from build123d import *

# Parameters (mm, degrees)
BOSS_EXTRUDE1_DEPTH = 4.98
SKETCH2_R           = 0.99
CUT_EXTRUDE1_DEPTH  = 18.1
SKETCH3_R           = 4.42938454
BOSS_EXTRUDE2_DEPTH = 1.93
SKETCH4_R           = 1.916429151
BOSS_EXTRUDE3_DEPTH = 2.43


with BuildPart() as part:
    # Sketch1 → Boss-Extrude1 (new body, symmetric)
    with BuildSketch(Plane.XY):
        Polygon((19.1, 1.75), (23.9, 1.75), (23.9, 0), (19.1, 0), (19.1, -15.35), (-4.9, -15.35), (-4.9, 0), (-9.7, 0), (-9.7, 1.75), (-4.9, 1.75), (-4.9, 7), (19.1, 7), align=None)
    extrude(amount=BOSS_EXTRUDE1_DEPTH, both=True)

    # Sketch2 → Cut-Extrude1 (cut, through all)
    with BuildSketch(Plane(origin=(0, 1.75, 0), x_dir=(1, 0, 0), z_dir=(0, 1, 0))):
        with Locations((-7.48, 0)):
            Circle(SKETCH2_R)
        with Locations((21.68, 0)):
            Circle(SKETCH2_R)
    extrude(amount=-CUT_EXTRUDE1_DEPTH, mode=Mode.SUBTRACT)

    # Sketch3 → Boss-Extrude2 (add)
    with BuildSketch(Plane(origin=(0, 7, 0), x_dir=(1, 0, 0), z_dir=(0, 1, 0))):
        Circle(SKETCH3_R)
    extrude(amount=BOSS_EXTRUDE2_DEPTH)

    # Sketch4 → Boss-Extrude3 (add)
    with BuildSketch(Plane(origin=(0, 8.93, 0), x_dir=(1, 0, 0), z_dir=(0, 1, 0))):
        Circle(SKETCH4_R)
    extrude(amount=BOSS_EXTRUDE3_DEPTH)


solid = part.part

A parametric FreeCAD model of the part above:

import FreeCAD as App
import Part
import Sketcher

V = App.Vector
Q = App.Units.Quantity

doc = App.newDocument("Part")
body = doc.addObject("PartDesign::Body", "Body")

# Sketch on XY plane
sketch1 = body.newObject("Sketcher::SketchObject", "Sketch")
sketch1.AttachmentSupport = (doc.getObject("XY_Plane"), [""])
sketch1.MapMode = "FlatFace"
sketch1.addGeometry(Part.LineSegment(V(23.9, 1.8, 0), V(19.1, 1.8, 0)), False)
sketch1.addGeometry(Part.LineSegment(V(19.1, 1.8, 0), V(19.1, 7, 0)), False)
sketch1.addGeometry(Part.LineSegment(V(19.1, 7, 0), V(-4.9, 7, 0)), False)
sketch1.addGeometry(Part.LineSegment(V(-4.9, 7, 0), V(-4.9, 1.8, 0)), False)
sketch1.addGeometry(Part.LineSegment(V(-4.9, 1.8, 0), V(-9.7, 1.8, 0)), False)
sketch1.addGeometry(Part.LineSegment(V(-9.7, 1.8, 0), V(-9.7, 0, 0)), False)
sketch1.addGeometry(Part.LineSegment(V(-9.7, 0, 0), V(-4.9, 0, 0)), False)
sketch1.addGeometry(Part.LineSegment(V(-4.9, 0, 0), V(-4.9, -15.3, 0)), False)
sketch1.addGeometry(Part.LineSegment(V(-4.9, -15.3, 0), V(19.1, -15.3, 0)), False)
sketch1.addGeometry(Part.LineSegment(V(19.1, -15.3, 0), V(19.1, 0, 0)), False)
sketch1.addGeometry(Part.LineSegment(V(19.1, 0, 0), V(23.9, 0, 0)), False)
sketch1.addGeometry(Part.LineSegment(V(23.9, 0, 0), V(23.9, 1.8, 0)), False)
sketch1.addConstraint(Sketcher.Constraint("Coincident", 0, 2, 1, 1))
sketch1.addConstraint(Sketcher.Constraint("Coincident", 1, 2, 2, 1))
sketch1.addConstraint(Sketcher.Constraint("Coincident", 2, 2, 3, 1))
sketch1.addConstraint(Sketcher.Constraint("Coincident", 3, 2, 4, 1))
sketch1.addConstraint(Sketcher.Constraint("Coincident", 4, 2, 5, 1))
sketch1.addConstraint(Sketcher.Constraint("Coincident", 5, 2, 6, 1))
sketch1.addConstraint(Sketcher.Constraint("Coincident", 6, 2, 7, 1))
sketch1.addConstraint(Sketcher.Constraint("Coincident", 7, 2, 8, 1))
sketch1.addConstraint(Sketcher.Constraint("Coincident", 8, 2, 9, 1))
sketch1.addConstraint(Sketcher.Constraint("Coincident", 9, 2, 10, 1))
sketch1.addConstraint(Sketcher.Constraint("Coincident", 10, 2, 11, 1))
sketch1.addConstraint(Sketcher.Constraint("Coincident", 11, 2, 0, 1))
sketch1.addConstraint(Sketcher.Constraint("Horizontal", 0))
sketch1.addConstraint(Sketcher.Constraint("Vertical", 1))
sketch1.addConstraint(Sketcher.Constraint("Horizontal", 2))
sketch1.addConstraint(Sketcher.Constraint("Vertical", 3))
sketch1.addConstraint(Sketcher.Constraint("Horizontal", 4))
sketch1.addConstraint(Sketcher.Constraint("Vertical", 5))
sketch1.addConstraint(Sketcher.Constraint("Horizontal", 6))
sketch1.addConstraint(Sketcher.Constraint("Vertical", 7))
sketch1.addConstraint(Sketcher.Constraint("Horizontal", 8))
sketch1.addConstraint(Sketcher.Constraint("Vertical", 9))
sketch1.addConstraint(Sketcher.Constraint("Horizontal", 10))
sketch1.addConstraint(Sketcher.Constraint("Vertical", 11))
sketch1.addConstraint(Sketcher.Constraint("PointOnObject", 5, 2, -1))
sketch1.addConstraint(Sketcher.Constraint("PointOnObject", 9, 2, -1))
sketch1.addConstraint(Sketcher.Constraint("Horizontal", 0, 2, 3, 2))
sketch1.addConstraint(Sketcher.Constraint("Vertical", 3, 2, 6, 2))
sketch1.addConstraint(Sketcher.Constraint("Vertical", 1, 2, 8, 2))
sketch1.addConstraint(Sketcher.Constraint("Equal", 0, 4))
sketch1.addConstraint(Sketcher.Constraint("DistanceX", 2, 2, 2, 1, Q("24 mm")))
sketch1.addConstraint(Sketcher.Constraint("DistanceX", 0, 2, 0, 1, Q("4.8 mm")))
sketch1.addConstraint(Sketcher.Constraint("DistanceY", -1, 1, 1, 2, Q("7 mm")))
sketch1.addConstraint(Sketcher.Constraint("DistanceY", 1, 1, 1, 2, Q("5.25 mm")))
sketch1.addConstraint(Sketcher.Constraint("DistanceY", 7, 2, 7, 1, Q("15.35 mm")))
sketch1.addConstraint(Sketcher.Constraint("DistanceX", -1, 1, 0, 2, Q("19.1 mm")))
pad1 = body.newObject("PartDesign::Pad", "Pad")
pad1.Profile = sketch1
pad1.Length = 9.96
pad1.Midplane = True

# Sketch on XZ plane
sketch2 = body.newObject("Sketcher::SketchObject", "Sketch001")
sketch2.AttachmentSupport = (doc.getObject("XZ_Plane"), [""])
sketch2.MapMode = "FlatFace"
sketch2.AttachmentOffset = App.Placement(V(0, 0, -1.75), App.Rotation())
sketch2.addGeometry(Part.Circle(V(-7.5, 0, 0), V(0, 0, 1), 1), False)
sketch2.addGeometry(Part.Circle(V(21.7, 0, 0), V(0, 0, 1), 1), False)
sketch2.addConstraint(Sketcher.Constraint("Equal", 0, 1))
sketch2.addConstraint(Sketcher.Constraint("PointOnObject", 0, 3, -1))
sketch2.addConstraint(Sketcher.Constraint("PointOnObject", 1, 3, -1))
sketch2.addConstraint(Sketcher.Constraint("Diameter", 0, Q("1.98 mm")))
sketch2.addConstraint(Sketcher.Constraint("DistanceX", 0, 3, -1, 1, Q("7.48 mm")))
sketch2.addConstraint(Sketcher.Constraint("DistanceX", -1, 1, 1, 3, Q("21.68 mm")))
pocket1 = body.newObject("PartDesign::Pocket", "Pocket")
pocket1.Profile = sketch2
pocket1.Type = "ThroughAll"
pocket1.Reversed = True

# Sketch on XZ plane
sketch3 = body.newObject("Sketcher::SketchObject", "Sketch002")
sketch3.AttachmentSupport = (doc.getObject("XZ_Plane"), [""])
sketch3.MapMode = "FlatFace"
sketch3.AttachmentOffset = App.Placement(V(0, 0, -7), App.Rotation())
sketch3.addGeometry(Part.Circle(V(0, 0, 0), V(0, 0, 1), 4.4), False)
sketch3.addConstraint(Sketcher.Constraint("Coincident", 0, 3, -1, 1))
sketch3.addConstraint(Sketcher.Constraint("Diameter", 0, Q("8.858769 mm")))
pad2 = body.newObject("PartDesign::Pad", "Pad001")
pad2.Profile = sketch3
pad2.Length = 1.93
pad2.Reversed = True

# Sketch on XZ plane
sketch4 = body.newObject("Sketcher::SketchObject", "Sketch003")
sketch4.AttachmentSupport = (doc.getObject("XZ_Plane"), [""])
sketch4.MapMode = "FlatFace"
sketch4.AttachmentOffset = App.Placement(V(0, 0, -8.93), App.Rotation())
sketch4.addGeometry(Part.Circle(V(0, 0, 0), V(0, 0, 1), 1.9), False)
sketch4.addConstraint(Sketcher.Constraint("Coincident", 0, 3, -1, 1))
sketch4.addConstraint(Sketcher.Constraint("Diameter", 0, Q("3.832858 mm")))
pad3 = body.newObject("PartDesign::Pad", "Pad002")
pad3.Profile = sketch4
pad3.Length = 2.43
pad3.Reversed = True

doc.recompute()
